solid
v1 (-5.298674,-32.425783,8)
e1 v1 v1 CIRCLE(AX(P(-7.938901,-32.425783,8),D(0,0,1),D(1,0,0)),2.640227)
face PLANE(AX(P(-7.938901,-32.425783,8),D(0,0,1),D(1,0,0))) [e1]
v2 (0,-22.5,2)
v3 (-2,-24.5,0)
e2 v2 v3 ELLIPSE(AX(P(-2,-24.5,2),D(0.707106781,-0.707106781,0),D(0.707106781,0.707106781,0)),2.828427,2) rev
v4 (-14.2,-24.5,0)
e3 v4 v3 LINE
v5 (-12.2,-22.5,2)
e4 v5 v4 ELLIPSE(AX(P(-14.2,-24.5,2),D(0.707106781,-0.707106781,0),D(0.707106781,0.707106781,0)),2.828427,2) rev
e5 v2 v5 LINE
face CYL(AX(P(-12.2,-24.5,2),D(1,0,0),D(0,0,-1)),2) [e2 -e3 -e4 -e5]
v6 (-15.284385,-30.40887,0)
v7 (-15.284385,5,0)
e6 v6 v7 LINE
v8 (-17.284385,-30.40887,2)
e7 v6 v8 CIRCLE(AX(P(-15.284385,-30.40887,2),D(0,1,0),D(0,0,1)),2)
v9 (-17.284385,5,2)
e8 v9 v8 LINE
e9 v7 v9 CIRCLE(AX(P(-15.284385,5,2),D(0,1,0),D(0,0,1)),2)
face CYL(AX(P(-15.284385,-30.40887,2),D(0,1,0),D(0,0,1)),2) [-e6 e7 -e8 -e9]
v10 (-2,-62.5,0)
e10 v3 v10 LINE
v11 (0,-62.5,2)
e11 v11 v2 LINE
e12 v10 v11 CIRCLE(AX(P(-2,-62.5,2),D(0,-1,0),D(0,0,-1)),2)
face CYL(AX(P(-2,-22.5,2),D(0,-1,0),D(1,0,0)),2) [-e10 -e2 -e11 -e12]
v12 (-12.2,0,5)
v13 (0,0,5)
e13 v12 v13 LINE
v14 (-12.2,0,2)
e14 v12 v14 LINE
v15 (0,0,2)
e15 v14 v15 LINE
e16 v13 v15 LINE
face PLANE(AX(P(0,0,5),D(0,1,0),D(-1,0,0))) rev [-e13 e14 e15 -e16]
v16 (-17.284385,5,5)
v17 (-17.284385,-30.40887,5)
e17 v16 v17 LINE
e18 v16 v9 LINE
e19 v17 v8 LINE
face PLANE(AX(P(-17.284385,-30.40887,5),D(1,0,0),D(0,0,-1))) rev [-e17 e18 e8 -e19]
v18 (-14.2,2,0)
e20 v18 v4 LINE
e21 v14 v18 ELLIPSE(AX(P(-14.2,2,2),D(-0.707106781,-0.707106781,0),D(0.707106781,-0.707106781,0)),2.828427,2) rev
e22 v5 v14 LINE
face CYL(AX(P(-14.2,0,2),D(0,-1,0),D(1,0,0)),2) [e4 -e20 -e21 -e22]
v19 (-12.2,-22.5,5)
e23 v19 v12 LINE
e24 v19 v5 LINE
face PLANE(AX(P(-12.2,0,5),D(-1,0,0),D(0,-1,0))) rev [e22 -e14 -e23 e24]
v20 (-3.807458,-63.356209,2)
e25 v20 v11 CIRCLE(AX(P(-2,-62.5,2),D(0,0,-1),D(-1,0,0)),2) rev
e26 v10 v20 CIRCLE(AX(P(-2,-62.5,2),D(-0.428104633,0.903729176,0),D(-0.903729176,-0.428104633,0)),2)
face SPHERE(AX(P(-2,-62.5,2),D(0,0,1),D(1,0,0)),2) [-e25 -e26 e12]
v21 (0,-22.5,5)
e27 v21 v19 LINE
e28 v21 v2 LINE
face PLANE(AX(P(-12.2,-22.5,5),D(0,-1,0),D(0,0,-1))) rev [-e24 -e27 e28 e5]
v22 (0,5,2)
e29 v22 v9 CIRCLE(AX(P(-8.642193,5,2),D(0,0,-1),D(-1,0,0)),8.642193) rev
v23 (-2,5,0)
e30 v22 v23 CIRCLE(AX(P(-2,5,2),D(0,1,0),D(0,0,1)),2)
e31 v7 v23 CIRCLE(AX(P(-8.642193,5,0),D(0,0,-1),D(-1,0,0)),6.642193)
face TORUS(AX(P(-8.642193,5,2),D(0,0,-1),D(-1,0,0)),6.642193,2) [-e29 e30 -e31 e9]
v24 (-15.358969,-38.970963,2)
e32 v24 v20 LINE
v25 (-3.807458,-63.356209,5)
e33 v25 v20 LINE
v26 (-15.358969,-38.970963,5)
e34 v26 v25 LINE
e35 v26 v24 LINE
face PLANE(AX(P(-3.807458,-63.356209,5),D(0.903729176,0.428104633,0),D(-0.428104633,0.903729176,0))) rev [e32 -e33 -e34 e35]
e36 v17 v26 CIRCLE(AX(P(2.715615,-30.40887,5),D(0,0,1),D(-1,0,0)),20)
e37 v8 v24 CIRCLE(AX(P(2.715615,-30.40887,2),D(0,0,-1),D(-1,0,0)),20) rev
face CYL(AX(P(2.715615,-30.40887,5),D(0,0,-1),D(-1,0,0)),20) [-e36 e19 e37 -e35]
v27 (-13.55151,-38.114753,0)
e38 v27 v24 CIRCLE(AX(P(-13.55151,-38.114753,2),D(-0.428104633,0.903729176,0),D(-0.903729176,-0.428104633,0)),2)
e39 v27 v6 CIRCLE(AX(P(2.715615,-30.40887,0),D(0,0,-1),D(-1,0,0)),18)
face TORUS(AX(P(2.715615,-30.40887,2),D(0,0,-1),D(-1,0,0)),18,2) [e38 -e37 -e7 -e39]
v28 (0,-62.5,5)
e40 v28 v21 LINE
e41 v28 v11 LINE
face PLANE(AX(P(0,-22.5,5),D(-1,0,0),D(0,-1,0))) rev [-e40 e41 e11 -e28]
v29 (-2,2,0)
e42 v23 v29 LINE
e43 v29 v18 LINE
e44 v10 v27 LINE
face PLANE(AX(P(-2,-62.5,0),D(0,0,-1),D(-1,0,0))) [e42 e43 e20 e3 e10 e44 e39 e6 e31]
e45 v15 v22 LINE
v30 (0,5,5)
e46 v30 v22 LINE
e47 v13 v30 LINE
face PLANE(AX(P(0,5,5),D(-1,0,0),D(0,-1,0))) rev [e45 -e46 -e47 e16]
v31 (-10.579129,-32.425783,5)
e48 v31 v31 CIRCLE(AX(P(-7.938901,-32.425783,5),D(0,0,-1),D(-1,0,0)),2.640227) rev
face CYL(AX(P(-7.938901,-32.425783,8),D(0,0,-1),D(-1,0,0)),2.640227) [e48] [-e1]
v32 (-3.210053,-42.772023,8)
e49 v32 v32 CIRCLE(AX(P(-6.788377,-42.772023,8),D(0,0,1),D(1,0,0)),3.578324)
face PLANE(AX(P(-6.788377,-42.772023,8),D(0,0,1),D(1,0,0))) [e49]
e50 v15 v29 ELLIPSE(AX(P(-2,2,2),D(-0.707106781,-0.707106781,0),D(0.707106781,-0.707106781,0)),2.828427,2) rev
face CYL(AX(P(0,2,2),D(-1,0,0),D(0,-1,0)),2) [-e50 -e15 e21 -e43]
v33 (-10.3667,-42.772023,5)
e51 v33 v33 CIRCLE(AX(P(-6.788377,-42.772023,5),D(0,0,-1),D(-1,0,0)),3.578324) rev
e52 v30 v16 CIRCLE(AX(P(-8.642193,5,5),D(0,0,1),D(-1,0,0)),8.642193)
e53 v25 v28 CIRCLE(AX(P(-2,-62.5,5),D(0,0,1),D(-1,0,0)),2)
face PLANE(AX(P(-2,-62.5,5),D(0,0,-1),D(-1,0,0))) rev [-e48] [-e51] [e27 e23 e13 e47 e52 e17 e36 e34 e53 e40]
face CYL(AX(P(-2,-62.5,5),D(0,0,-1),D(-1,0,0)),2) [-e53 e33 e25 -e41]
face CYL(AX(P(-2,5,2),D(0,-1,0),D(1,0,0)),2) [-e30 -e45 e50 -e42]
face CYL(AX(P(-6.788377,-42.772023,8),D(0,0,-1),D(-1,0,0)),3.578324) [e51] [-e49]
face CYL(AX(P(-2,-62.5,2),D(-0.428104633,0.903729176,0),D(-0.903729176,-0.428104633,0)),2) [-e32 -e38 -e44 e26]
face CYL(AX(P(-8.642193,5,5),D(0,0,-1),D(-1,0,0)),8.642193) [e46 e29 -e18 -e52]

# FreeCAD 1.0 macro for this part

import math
import FreeCAD as App
import Part
import Sketcher
from FreeCAD import Vector
Q = App.Units.Quantity


def edges_at(feature, points):
    """Names of the edges that pass closest to the given points."""
    edges = feature.Shape.Edges
    near = lambda p: min(range(len(edges)), key=lambda i: edges[i].distToShape(Part.Vertex(*p))[0])
    return sorted({f"Edge{near(p) + 1}" for p in points})

doc = App.newDocument("Part")
body = doc.addObject("PartDesign::Body", "Body")

# Sketch on XY plane
sketch1 = doc.addObject("Sketcher::SketchObject", "Sketch")
body.addObject(sketch1)
sketch1.AttachmentSupport = (doc.XY_Plane, [""])
sketch1.MapMode = "FlatFace"
sketch1.addGeometry([
    Part.LineSegment(Vector(-12.2, 0, 0), Vector(0, 0, 0)),  # 0
    Part.LineSegment(Vector(0, 0, 0), Vector(0, 5, 0)),  # 1
    Part.ArcOfCircle(Part.Circle(Vector(-8.642193, 5, 0), Vector(0, 0, 1), 8.642193), math.radians(0), math.radians(180)),  # 2
    Part.LineSegment(Vector(-17.284385, 5, 0), Vector(-17.284385, -30.40887, 0)),  # 3
    Part.ArcOfCircle(Part.Circle(Vector(2.715615, -30.40887, 0), Vector(0, 0, 1), 20), math.radians(-180), math.radians(-154.652665)),  # 4
    Part.LineSegment(Vector(-15.358969, -38.970963, 0), Vector(-3.807458, -63.356209, 0)),  # 5
    Part.ArcOfCircle(Part.Circle(Vector(-2, -62.5, 0), Vector(0, 0, 1), 2), math.radians(-154.652665), math.radians(0)),  # 6
    Part.LineSegment(Vector(0, -62.5, 0), Vector(0, -22.5, 0)),  # 7
    Part.LineSegment(Vector(0, -22.5, 0), Vector(-12.2, -22.5, 0)),  # 8
    Part.LineSegment(Vector(-12.2, -22.5, 0), Vector(-12.2, 0, 0)),  # 9
], False)
sketch1.addConstraint([
    Sketcher.Constraint("Coincident", 0, 2, 1, 1),
    Sketcher.Constraint("Tangent", 1, 2, 2, 1),
    Sketcher.Constraint("Tangent", 2, 2, 3, 1),
    Sketcher.Constraint("Tangent", 3, 2, 4, 1),
    Sketcher.Constraint("Tangent", 4, 2, 5, 1),
    Sketcher.Constraint("Tangent", 5, 2, 6, 1),
    Sketcher.Constraint("Tangent", 6, 2, 7, 1),
    Sketcher.Constraint("Coincident", 7, 2, 8, 1),
    Sketcher.Constraint("Coincident", 8, 2, 9, 1),
    Sketcher.Constraint("Coincident", 9, 2, 0, 1),
    Sketcher.Constraint("Horizontal", 0),
    Sketcher.Constraint("Vertical", 1),
    Sketcher.Constraint("Vertical", 3),
    Sketcher.Constraint("Vertical", 7),
    Sketcher.Constraint("Horizontal", 8),
    Sketcher.Constraint("Vertical", 9),
    Sketcher.Constraint("Coincident", 0, 2, -1, 1),
    Sketcher.Constraint("PointOnObject", 6, 2, -2),
    Sketcher.Constraint("Radius", 4, Q("20 mm")),
    Sketcher.Constraint("Radius", 6, Q("2 mm")),
    Sketcher.Constraint("DistanceY", 1, 1, 1, 2, Q("5 mm")),
    Sketcher.Constraint("DistanceY", 7, 1, 7, 2, Q("40 mm")),
    Sketcher.Constraint("DistanceX", 0, 1, 0, 2, Q("12.2 mm")),
    Sketcher.Constraint("DistanceY", 9, 1, 9, 2, Q("22.5 mm")),
    Sketcher.Constraint("Radius", 2, Q("8.642193 mm")),
    Sketcher.Constraint("DistanceY", 3, 2, 3, 1, Q("35.40887 mm")),
])
pad1 = doc.addObject("PartDesign::Pad", "Pad")
body.addObject(pad1)
pad1.Profile = sketch1
pad1.Length = 5

# Sketch on XY plane
sketch2 = doc.addObject("Sketcher::SketchObject", "Sketch001")
body.addObject(sketch2)
sketch2.AttachmentSupport = (doc.XY_Plane, [""])
sketch2.MapMode = "FlatFace"
sketch2.AttachmentOffset = App.Placement(Vector(0, 0, 5), App.Rotation())
sketch2.addGeometry([
    Part.Circle(Vector(-7.938901, -32.425783, 0), Vector(0, 0, 1), 2.640227),
    Part.Circle(Vector(-6.788377, -42.772023, 0), Vector(0, 0, 1), 3.578324),
], False)
sketch2.addConstraint([
    Sketcher.Constraint("Diameter", 0, Q("5.280454 mm")),
    Sketcher.Constraint("Diameter", 1, Q("7.156647 mm")),
    Sketcher.Constraint("DistanceX", 0, 3, -1, 1, Q("7.938901 mm")),
    Sketcher.Constraint("DistanceY", 1, 3, 0, 3, Q("10.34624 mm")),
    Sketcher.Constraint("DistanceY", 0, 3, -1, 1, Q("32.425783 mm")),
    Sketcher.Constraint("DistanceX", 1, 3, -1, 1, Q("6.788377 mm")),
])
pad2 = doc.addObject("PartDesign::Pad", "Pad001")
body.addObject(pad2)
pad2.Profile = sketch2
pad2.Length = 3
doc.recompute()

fillet = doc.addObject("PartDesign::Fillet", "Fillet")
body.addObject(fillet)
fillet.Base = (pad2, edges_at(pad2, [
    (-6.1, -22.5, 0),
    (0, -42.5, 0),
    (-1.561, -64.451, 0),
    (-9.583, -51.164, 0),
    (-16.797, -34.797, 0),
    (-17.284, -12.704, 0),
    (-8.642, 13.642, 0),
    (0, 2.5, 0),
    (-6.1, 0, 0),
    (-12.2, -11.25, 0),
]))
fillet.Radius = 2

doc.recompute()
